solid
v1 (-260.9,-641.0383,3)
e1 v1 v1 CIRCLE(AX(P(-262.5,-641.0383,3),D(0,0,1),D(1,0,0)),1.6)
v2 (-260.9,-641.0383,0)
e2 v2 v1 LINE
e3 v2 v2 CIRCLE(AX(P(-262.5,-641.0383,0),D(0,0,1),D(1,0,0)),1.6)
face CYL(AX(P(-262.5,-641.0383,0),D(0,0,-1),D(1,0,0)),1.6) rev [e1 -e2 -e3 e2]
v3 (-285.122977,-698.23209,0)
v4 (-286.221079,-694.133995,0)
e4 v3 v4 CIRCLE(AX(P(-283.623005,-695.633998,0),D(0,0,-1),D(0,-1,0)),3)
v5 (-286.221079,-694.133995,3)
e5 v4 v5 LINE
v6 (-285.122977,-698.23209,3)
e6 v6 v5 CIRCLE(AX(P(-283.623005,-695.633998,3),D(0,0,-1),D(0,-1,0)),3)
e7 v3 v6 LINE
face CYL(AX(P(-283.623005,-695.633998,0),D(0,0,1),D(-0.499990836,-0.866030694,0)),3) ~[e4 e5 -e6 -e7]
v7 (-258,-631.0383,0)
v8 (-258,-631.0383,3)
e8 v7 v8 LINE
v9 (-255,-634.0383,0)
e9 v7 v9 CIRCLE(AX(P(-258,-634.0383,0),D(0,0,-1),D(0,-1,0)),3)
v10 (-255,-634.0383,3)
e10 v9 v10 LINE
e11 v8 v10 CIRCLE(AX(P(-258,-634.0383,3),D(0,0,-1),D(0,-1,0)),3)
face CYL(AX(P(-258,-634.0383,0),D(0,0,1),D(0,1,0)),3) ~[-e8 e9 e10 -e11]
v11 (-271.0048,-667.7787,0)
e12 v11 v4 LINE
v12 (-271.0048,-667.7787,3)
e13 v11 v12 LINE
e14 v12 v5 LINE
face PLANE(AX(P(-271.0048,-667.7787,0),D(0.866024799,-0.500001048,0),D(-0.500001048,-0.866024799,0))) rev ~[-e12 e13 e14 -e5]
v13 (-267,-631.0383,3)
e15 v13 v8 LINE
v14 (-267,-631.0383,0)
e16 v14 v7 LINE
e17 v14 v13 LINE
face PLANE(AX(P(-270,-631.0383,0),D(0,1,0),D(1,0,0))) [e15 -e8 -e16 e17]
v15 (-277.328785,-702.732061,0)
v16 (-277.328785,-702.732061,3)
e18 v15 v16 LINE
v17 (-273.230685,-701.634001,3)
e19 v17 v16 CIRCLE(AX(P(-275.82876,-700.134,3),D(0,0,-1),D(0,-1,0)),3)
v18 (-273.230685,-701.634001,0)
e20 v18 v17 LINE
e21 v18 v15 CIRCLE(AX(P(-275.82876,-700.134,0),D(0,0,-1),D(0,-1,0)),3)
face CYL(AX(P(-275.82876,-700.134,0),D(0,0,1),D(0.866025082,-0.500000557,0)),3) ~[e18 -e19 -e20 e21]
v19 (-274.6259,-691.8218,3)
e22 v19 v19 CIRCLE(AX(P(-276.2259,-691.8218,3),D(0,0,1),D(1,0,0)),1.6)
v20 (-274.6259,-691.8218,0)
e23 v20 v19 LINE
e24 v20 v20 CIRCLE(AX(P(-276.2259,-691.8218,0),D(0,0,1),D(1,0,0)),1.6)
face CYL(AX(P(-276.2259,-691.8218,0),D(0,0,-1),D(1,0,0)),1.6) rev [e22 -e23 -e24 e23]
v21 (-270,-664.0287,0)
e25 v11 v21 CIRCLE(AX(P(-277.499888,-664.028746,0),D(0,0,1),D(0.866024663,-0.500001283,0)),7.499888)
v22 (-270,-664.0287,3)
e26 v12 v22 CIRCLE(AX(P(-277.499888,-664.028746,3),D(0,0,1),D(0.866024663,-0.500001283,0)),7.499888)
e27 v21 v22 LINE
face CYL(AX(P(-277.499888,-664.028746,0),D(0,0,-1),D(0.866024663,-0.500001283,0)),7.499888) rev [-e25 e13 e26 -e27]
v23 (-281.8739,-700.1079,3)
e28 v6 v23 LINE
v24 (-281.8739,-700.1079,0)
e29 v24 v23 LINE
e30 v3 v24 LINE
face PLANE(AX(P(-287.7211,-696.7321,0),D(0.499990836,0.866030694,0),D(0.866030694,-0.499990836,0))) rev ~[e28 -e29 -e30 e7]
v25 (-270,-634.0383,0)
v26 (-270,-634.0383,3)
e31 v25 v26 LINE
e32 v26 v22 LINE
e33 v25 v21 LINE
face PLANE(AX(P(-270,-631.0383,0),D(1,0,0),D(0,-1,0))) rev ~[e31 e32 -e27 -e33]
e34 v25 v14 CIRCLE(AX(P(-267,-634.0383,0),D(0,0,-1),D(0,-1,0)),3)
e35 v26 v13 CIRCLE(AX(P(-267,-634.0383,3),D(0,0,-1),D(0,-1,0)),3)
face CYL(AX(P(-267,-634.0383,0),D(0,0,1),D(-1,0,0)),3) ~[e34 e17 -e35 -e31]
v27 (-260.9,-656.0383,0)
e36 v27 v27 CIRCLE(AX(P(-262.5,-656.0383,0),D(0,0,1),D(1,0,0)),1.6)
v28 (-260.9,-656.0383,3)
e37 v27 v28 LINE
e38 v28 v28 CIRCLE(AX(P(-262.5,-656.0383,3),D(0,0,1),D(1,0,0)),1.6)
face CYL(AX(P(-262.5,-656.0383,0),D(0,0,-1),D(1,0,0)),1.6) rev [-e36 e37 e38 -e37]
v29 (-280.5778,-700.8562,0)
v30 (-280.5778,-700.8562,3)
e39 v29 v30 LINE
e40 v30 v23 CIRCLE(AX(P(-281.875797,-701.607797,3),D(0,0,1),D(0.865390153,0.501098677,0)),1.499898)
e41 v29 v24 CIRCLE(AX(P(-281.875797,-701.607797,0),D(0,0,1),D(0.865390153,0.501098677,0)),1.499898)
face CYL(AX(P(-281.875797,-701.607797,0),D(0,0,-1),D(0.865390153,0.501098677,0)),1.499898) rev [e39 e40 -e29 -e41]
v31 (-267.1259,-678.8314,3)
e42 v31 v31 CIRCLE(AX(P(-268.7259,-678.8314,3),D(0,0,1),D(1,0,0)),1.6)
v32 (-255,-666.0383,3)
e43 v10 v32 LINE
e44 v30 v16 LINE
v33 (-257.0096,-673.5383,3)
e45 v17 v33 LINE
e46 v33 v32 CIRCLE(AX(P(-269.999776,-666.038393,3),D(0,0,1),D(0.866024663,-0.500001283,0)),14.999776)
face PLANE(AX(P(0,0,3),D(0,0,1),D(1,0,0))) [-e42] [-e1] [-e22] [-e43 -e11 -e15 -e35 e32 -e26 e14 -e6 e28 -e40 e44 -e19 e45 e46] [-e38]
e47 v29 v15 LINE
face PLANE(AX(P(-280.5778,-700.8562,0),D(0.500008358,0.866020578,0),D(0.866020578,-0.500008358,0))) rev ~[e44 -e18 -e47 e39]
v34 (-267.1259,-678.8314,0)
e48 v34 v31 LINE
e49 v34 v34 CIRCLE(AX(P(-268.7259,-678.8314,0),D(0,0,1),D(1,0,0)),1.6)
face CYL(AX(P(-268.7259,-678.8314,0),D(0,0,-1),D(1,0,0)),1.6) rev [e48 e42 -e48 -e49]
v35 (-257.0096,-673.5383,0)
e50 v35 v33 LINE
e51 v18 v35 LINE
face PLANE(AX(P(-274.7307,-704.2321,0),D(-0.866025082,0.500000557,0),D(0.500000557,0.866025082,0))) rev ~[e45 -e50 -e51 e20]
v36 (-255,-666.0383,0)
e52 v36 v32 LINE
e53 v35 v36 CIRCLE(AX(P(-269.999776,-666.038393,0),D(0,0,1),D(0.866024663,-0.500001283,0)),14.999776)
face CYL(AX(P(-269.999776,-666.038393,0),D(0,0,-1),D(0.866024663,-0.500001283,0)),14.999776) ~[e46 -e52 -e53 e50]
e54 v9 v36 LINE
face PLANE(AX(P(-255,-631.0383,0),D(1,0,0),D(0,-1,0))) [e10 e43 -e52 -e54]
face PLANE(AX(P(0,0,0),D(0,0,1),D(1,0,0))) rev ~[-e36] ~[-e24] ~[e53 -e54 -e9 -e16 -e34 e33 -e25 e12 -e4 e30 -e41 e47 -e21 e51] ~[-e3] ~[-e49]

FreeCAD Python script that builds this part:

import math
import FreeCAD as App
import Part
import Sketcher


def edges_at(feature, points):
    """Names of the edges that pass closest to the given points."""
    edges = feature.Shape.Edges
    near = lambda p: min(range(len(edges)), key=lambda i: edges[i].distToShape(Part.Vertex(*p))[0])
    return sorted({f"Edge{near(p) + 1}" for p in points})

doc = App.newDocument("Part")
body = doc.addObject("PartDesign::Body", "Body")

# Sketch on XY plane
sketch1 = doc.addObject("Sketcher::SketchObject", "Sketch")
body.addObject(sketch1)
sketch1.AttachmentSupport = (doc.XY_Plane, [""])
sketch1.MapMode = "FlatFace"
sketch1.addGeometry([
    Part.ArcOfCircle(Part.Circle(App.Vector(-277.5, -664.0287, 0), App.Vector(0, 0, 1), 7.500008), math.radians(-29.999964), math.radians(0)),  # 0
    Part.LineSegment(App.Vector(-271.0048, -667.7787, 0), App.Vector(-287.7211, -696.7321, 0)),  # 1
    Part.LineSegment(App.Vector(-287.7211, -696.7321, 0), App.Vector(-281.8739, -700.1079, 0)),  # 2
    Part.ArcOfCircle(Part.Circle(App.Vector(-281.8759, -701.6079, 0), App.Vector(0, 0, 1), 1.499967), math.radians(30.07415), math.radians(89.923606)),  # 3
    Part.LineSegment(App.Vector(-280.5778, -700.8562, 0), App.Vector(-274.7307, -704.2321, 0)),  # 4
    Part.LineSegment(App.Vector(-274.7307, -704.2321, 0), App.Vector(-257.0096, -673.5383, 0)),  # 5
    Part.ArcOfCircle(Part.Circle(App.Vector(-270, -666.0383, 0), App.Vector(0, 0, 1), 15.000016), math.radians(-29.999964), math.radians(0)),  # 6
    Part.LineSegment(App.Vector(-255, -666.0383, 0), App.Vector(-255, -631.0383, 0)),  # 7
    Part.LineSegment(App.Vector(-255, -631.0383, 0), App.Vector(-270, -631.0383, 0)),  # 8
    Part.LineSegment(App.Vector(-270, -631.0383, 0), App.Vector(-270, -664.0287, 0)),  # 9
    Part.Circle(App.Vector(-276.2259, -691.8218, 0), App.Vector(0, 0, 1), 1.6),  # 10
    Part.Circle(App.Vector(-268.7259, -678.8314, 0), App.Vector(0, 0, 1), 1.6),  # 11
    Part.Circle(App.Vector(-262.5, -656.0383, 0), App.Vector(0, 0, 1), 1.6),  # 12
    Part.Circle(App.Vector(-262.5, -641.0383, 0), App.Vector(0, 0, 1), 1.6),  # 13
], False)
sketch1.addConstraint([
    Sketcher.Constraint("Tangent", 0, 1, 1, 1),
    Sketcher.Constraint("Coincident", 1, 2, 2, 1),
    Sketcher.Constraint("Coincident", 2, 2, 3, 2),
    Sketcher.Constraint("Coincident", 3, 1, 4, 1),
    Sketcher.Constraint("Coincident", 4, 2, 5, 1),
    Sketcher.Constraint("Tangent", 5, 2, 6, 1),
    Sketcher.Constraint("Tangent", 6, 2, 7, 1),
    Sketcher.Constraint("Coincident", 7, 2, 8, 1),
    Sketcher.Constraint("Coincident", 8, 2, 9, 1),
    Sketcher.Constraint("Tangent", 9, 2, 0, 2),
    Sketcher.Constraint("Vertical", 7),
    Sketcher.Constraint("Horizontal", 8),
    Sketcher.Constraint("Vertical", 9),
    Sketcher.Constraint("Equal", 10, 11),
    Sketcher.Constraint("Equal", 11, 12),
    Sketcher.Constraint("Equal", 12, 13),
    Sketcher.Constraint("Perpendicular", 1, 2),
    Sketcher.Constraint("Parallel", 2, 4),
    Sketcher.Constraint("Perpendicular", 4, 5),
    Sketcher.Constraint("Vertical", 12, 3, 13, 3),
    Sketcher.Constraint("Vertical", 6, 3, 8, 2),
    Sketcher.Constraint("Equal", 2, 4),
    Sketcher.Constraint("Radius", 6, 15.0),
    Sketcher.Constraint("Diameter", 10, 3.2),
    Sketcher.Constraint("Radius", 0, 7.5),
    Sketcher.Constraint("DistanceY", 7, 1, 7, 2, 35.0),
    Sketcher.Constraint("DistanceY", 6, 3, 12, 3, 10.0),
    Sketcher.Constraint("DistanceX", 0, 3, 12, 3, 15.0),
    Sketcher.Constraint("DistanceY", 12, 3, 13, 3, 15.0),
    Sketcher.Constraint("Radius", 3, 1.5),
    Sketcher.Constraint("DistanceX", 10, 3, 11, 3, 7.5),
    Sketcher.Constraint("DistanceY", 4, 2, 1, 2, 7.5),
    Sketcher.Constraint("DistanceY", 5, 2, 6, 3, 7.5),
    Sketcher.Constraint("DistanceX", 6, 3, -1, 1, 270.0),
    Sketcher.Constraint("DistanceX", 3, 3, 10, 3, 5.65),
    Sketcher.Constraint("DistanceY", 9, 2, 9, 1, 32.9904),
    Sketcher.Constraint("DistanceX", 3, 3, -1, 1, 281.876),
    Sketcher.Constraint("DistanceY", 3, 3, -1, 1, 701.608),
    Sketcher.Constraint("DistanceX", 1, 2, -1, 1, 287.721),
    Sketcher.Constraint("DistanceY", 3, 3, 10, 3, 9.786),
    Sketcher.Constraint("DistanceY", 11, 3, 6, 3, 12.793),
])
pad1 = doc.addObject("PartDesign::Pad", "Pad")
body.addObject(pad1)
pad1.Profile = sketch1
pad1.Length = 3
doc.recompute()

fillet = doc.addObject("PartDesign::Fillet", "Fillet")
body.addObject(fillet)
fillet.Base = (pad1, edges_at(pad1, [
    (-270, -631.038, 1.5),
    (-255, -631.038, 1.5),
    (-287.721, -696.732, 1.5),
    (-274.731, -704.232, 1.5),
]))
fillet.Radius = 3

doc.recompute()
